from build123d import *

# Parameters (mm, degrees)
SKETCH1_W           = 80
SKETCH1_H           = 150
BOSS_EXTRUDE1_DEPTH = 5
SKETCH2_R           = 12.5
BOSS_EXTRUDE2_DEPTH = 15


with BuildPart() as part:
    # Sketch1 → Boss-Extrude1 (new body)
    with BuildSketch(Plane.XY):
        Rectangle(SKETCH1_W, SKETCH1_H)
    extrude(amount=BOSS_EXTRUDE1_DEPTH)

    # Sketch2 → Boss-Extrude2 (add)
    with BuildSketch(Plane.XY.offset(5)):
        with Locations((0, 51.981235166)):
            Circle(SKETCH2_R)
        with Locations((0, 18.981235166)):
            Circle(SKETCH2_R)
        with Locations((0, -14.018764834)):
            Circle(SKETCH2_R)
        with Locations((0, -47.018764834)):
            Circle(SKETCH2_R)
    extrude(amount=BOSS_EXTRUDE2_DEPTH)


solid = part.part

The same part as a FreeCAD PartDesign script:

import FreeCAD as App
import Part
import Sketcher

V = App.Vector


def add_polygon(sketch, points):
    """Adds a closed chain of lines whose ends are joined by coincident constraints."""
    first, n = sketch.GeometryCount, len(points)
    for a, b in zip(points, points[1:] + points[:1]):
        sketch.addGeometry(Part.LineSegment(App.Vector(*a, 0), App.Vector(*b, 0)), False)
    for i in range(n):
        sketch.addConstraint(Sketcher.Constraint("Coincident", first + i, 2, first + (i + 1) % n, 1))

doc = App.newDocument("Part")
params = doc.addObject("Spreadsheet::Sheet", "Params")
for row, (alias, value) in enumerate([
    ("sketch1_width", "80 mm"),
    ("sketch1_height", "150 mm"),
    ("pad1_length", "5 mm"),
    ("sketch2_diameter", "25 mm"),
    ("pad2_length", "15 mm"),
], start=1):
    params.set(f"A{row}", alias)
    params.set(f"B{row}", "=" + value)
    params.setAlias(f"B{row}", alias)

body = doc.addObject("PartDesign::Body", "Body")

# Sketch on XY plane
sketch1 = body.newObject("Sketcher::SketchObject", "Sketch")
sketch1.AttachmentSupport = (doc.getObject("XY_Plane"), [""])
sketch1.MapMode = "FlatFace"
add_polygon(sketch1, [(-40, 75), (-40, -75), (40, -75), (40, 75)])  # lines 0-3
sketch1.addConstraint(Sketcher.Constraint("Vertical", 0))
sketch1.addConstraint(Sketcher.Constraint("Horizontal", 1))
sketch1.addConstraint(Sketcher.Constraint("Vertical", 2))
sketch1.addConstraint(Sketcher.Constraint("Horizontal", 3))
sketch1.addConstraint(Sketcher.Constraint("Symmetric", 0, 2, 2, 2, -1, 1))
sketch1.addConstraint(Sketcher.Constraint("DistanceX", 1, 1, 1, 2, 80.0))
sketch1.addConstraint(Sketcher.Constraint("DistanceY", 0, 2, 0, 1, 150.0))
sketch1.setExpression("Constraints[9]", "Params.sketch1_width")
sketch1.setExpression("Constraints[10]", "Params.sketch1_height")
pad1 = body.newObject("PartDesign::Pad", "Pad")
pad1.Profile = sketch1
pad1.setExpression("Length", "Params.pad1_length")

# Sketch on XY plane
sketch2 = body.newObject("Sketcher::SketchObject", "Sketch001")
sketch2.AttachmentSupport = (doc.getObject("XY_Plane"), [""])
sketch2.MapMode = "FlatFace"
sketch2.AttachmentOffset = App.Placement(V(0, 0, 5), App.Rotation())
sketch2.addGeometry(Part.Circle(V(0, 51.981235, 0), V(0, 0, 1), 12.5), False)
sketch2.addGeometry(Part.Circle(V(0, 18.981235, 0), V(0, 0, 1), 12.5), False)
sketch2.addGeometry(Part.Circle(V(0, -14.018765, 0), V(0, 0, 1), 12.5), False)
sketch2.addGeometry(Part.Circle(V(0, -47.018765, 0), V(0, 0, 1), 12.5), False)
sketch2.addConstraint(Sketcher.Constraint("Equal", 0, 1))
sketch2.addConstraint(Sketcher.Constraint("Equal", 1, 2))
sketch2.addConstraint(Sketcher.Constraint("Equal", 2, 3))
sketch2.addConstraint(Sketcher.Constraint("PointOnObject", 0, 3, -2))
sketch2.addConstraint(Sketcher.Constraint("PointOnObject", 1, 3, -2))
sketch2.addConstraint(Sketcher.Constraint("PointOnObject", 2, 3, -2))
sketch2.addConstraint(Sketcher.Constraint("PointOnObject", 3, 3, -2))
sketch2.addConstraint(Sketcher.Constraint("Diameter", 0, 25.0))
sketch2.addConstraint(Sketcher.Constraint("DistanceY", 1, 3, 0, 3, 33.0))
sketch2.addConstraint(Sketcher.Constraint("DistanceY", 2, 3, 1, 3, 33.0))
sketch2.addConstraint(Sketcher.Constraint("DistanceY", 3, 3, 2, 3, 33.0))
sketch2.addConstraint(Sketcher.Constraint("DistanceY", -1, 1, 0, 3, 51.981235))
sketch2.setExpression("Constraints[7]", "Params.sketch2_diameter")
pad2 = body.newObject("PartDesign::Pad", "Pad001")
pad2.Profile = sketch2
pad2.setExpression("Length", "Params.pad2_length")

doc.recompute()
